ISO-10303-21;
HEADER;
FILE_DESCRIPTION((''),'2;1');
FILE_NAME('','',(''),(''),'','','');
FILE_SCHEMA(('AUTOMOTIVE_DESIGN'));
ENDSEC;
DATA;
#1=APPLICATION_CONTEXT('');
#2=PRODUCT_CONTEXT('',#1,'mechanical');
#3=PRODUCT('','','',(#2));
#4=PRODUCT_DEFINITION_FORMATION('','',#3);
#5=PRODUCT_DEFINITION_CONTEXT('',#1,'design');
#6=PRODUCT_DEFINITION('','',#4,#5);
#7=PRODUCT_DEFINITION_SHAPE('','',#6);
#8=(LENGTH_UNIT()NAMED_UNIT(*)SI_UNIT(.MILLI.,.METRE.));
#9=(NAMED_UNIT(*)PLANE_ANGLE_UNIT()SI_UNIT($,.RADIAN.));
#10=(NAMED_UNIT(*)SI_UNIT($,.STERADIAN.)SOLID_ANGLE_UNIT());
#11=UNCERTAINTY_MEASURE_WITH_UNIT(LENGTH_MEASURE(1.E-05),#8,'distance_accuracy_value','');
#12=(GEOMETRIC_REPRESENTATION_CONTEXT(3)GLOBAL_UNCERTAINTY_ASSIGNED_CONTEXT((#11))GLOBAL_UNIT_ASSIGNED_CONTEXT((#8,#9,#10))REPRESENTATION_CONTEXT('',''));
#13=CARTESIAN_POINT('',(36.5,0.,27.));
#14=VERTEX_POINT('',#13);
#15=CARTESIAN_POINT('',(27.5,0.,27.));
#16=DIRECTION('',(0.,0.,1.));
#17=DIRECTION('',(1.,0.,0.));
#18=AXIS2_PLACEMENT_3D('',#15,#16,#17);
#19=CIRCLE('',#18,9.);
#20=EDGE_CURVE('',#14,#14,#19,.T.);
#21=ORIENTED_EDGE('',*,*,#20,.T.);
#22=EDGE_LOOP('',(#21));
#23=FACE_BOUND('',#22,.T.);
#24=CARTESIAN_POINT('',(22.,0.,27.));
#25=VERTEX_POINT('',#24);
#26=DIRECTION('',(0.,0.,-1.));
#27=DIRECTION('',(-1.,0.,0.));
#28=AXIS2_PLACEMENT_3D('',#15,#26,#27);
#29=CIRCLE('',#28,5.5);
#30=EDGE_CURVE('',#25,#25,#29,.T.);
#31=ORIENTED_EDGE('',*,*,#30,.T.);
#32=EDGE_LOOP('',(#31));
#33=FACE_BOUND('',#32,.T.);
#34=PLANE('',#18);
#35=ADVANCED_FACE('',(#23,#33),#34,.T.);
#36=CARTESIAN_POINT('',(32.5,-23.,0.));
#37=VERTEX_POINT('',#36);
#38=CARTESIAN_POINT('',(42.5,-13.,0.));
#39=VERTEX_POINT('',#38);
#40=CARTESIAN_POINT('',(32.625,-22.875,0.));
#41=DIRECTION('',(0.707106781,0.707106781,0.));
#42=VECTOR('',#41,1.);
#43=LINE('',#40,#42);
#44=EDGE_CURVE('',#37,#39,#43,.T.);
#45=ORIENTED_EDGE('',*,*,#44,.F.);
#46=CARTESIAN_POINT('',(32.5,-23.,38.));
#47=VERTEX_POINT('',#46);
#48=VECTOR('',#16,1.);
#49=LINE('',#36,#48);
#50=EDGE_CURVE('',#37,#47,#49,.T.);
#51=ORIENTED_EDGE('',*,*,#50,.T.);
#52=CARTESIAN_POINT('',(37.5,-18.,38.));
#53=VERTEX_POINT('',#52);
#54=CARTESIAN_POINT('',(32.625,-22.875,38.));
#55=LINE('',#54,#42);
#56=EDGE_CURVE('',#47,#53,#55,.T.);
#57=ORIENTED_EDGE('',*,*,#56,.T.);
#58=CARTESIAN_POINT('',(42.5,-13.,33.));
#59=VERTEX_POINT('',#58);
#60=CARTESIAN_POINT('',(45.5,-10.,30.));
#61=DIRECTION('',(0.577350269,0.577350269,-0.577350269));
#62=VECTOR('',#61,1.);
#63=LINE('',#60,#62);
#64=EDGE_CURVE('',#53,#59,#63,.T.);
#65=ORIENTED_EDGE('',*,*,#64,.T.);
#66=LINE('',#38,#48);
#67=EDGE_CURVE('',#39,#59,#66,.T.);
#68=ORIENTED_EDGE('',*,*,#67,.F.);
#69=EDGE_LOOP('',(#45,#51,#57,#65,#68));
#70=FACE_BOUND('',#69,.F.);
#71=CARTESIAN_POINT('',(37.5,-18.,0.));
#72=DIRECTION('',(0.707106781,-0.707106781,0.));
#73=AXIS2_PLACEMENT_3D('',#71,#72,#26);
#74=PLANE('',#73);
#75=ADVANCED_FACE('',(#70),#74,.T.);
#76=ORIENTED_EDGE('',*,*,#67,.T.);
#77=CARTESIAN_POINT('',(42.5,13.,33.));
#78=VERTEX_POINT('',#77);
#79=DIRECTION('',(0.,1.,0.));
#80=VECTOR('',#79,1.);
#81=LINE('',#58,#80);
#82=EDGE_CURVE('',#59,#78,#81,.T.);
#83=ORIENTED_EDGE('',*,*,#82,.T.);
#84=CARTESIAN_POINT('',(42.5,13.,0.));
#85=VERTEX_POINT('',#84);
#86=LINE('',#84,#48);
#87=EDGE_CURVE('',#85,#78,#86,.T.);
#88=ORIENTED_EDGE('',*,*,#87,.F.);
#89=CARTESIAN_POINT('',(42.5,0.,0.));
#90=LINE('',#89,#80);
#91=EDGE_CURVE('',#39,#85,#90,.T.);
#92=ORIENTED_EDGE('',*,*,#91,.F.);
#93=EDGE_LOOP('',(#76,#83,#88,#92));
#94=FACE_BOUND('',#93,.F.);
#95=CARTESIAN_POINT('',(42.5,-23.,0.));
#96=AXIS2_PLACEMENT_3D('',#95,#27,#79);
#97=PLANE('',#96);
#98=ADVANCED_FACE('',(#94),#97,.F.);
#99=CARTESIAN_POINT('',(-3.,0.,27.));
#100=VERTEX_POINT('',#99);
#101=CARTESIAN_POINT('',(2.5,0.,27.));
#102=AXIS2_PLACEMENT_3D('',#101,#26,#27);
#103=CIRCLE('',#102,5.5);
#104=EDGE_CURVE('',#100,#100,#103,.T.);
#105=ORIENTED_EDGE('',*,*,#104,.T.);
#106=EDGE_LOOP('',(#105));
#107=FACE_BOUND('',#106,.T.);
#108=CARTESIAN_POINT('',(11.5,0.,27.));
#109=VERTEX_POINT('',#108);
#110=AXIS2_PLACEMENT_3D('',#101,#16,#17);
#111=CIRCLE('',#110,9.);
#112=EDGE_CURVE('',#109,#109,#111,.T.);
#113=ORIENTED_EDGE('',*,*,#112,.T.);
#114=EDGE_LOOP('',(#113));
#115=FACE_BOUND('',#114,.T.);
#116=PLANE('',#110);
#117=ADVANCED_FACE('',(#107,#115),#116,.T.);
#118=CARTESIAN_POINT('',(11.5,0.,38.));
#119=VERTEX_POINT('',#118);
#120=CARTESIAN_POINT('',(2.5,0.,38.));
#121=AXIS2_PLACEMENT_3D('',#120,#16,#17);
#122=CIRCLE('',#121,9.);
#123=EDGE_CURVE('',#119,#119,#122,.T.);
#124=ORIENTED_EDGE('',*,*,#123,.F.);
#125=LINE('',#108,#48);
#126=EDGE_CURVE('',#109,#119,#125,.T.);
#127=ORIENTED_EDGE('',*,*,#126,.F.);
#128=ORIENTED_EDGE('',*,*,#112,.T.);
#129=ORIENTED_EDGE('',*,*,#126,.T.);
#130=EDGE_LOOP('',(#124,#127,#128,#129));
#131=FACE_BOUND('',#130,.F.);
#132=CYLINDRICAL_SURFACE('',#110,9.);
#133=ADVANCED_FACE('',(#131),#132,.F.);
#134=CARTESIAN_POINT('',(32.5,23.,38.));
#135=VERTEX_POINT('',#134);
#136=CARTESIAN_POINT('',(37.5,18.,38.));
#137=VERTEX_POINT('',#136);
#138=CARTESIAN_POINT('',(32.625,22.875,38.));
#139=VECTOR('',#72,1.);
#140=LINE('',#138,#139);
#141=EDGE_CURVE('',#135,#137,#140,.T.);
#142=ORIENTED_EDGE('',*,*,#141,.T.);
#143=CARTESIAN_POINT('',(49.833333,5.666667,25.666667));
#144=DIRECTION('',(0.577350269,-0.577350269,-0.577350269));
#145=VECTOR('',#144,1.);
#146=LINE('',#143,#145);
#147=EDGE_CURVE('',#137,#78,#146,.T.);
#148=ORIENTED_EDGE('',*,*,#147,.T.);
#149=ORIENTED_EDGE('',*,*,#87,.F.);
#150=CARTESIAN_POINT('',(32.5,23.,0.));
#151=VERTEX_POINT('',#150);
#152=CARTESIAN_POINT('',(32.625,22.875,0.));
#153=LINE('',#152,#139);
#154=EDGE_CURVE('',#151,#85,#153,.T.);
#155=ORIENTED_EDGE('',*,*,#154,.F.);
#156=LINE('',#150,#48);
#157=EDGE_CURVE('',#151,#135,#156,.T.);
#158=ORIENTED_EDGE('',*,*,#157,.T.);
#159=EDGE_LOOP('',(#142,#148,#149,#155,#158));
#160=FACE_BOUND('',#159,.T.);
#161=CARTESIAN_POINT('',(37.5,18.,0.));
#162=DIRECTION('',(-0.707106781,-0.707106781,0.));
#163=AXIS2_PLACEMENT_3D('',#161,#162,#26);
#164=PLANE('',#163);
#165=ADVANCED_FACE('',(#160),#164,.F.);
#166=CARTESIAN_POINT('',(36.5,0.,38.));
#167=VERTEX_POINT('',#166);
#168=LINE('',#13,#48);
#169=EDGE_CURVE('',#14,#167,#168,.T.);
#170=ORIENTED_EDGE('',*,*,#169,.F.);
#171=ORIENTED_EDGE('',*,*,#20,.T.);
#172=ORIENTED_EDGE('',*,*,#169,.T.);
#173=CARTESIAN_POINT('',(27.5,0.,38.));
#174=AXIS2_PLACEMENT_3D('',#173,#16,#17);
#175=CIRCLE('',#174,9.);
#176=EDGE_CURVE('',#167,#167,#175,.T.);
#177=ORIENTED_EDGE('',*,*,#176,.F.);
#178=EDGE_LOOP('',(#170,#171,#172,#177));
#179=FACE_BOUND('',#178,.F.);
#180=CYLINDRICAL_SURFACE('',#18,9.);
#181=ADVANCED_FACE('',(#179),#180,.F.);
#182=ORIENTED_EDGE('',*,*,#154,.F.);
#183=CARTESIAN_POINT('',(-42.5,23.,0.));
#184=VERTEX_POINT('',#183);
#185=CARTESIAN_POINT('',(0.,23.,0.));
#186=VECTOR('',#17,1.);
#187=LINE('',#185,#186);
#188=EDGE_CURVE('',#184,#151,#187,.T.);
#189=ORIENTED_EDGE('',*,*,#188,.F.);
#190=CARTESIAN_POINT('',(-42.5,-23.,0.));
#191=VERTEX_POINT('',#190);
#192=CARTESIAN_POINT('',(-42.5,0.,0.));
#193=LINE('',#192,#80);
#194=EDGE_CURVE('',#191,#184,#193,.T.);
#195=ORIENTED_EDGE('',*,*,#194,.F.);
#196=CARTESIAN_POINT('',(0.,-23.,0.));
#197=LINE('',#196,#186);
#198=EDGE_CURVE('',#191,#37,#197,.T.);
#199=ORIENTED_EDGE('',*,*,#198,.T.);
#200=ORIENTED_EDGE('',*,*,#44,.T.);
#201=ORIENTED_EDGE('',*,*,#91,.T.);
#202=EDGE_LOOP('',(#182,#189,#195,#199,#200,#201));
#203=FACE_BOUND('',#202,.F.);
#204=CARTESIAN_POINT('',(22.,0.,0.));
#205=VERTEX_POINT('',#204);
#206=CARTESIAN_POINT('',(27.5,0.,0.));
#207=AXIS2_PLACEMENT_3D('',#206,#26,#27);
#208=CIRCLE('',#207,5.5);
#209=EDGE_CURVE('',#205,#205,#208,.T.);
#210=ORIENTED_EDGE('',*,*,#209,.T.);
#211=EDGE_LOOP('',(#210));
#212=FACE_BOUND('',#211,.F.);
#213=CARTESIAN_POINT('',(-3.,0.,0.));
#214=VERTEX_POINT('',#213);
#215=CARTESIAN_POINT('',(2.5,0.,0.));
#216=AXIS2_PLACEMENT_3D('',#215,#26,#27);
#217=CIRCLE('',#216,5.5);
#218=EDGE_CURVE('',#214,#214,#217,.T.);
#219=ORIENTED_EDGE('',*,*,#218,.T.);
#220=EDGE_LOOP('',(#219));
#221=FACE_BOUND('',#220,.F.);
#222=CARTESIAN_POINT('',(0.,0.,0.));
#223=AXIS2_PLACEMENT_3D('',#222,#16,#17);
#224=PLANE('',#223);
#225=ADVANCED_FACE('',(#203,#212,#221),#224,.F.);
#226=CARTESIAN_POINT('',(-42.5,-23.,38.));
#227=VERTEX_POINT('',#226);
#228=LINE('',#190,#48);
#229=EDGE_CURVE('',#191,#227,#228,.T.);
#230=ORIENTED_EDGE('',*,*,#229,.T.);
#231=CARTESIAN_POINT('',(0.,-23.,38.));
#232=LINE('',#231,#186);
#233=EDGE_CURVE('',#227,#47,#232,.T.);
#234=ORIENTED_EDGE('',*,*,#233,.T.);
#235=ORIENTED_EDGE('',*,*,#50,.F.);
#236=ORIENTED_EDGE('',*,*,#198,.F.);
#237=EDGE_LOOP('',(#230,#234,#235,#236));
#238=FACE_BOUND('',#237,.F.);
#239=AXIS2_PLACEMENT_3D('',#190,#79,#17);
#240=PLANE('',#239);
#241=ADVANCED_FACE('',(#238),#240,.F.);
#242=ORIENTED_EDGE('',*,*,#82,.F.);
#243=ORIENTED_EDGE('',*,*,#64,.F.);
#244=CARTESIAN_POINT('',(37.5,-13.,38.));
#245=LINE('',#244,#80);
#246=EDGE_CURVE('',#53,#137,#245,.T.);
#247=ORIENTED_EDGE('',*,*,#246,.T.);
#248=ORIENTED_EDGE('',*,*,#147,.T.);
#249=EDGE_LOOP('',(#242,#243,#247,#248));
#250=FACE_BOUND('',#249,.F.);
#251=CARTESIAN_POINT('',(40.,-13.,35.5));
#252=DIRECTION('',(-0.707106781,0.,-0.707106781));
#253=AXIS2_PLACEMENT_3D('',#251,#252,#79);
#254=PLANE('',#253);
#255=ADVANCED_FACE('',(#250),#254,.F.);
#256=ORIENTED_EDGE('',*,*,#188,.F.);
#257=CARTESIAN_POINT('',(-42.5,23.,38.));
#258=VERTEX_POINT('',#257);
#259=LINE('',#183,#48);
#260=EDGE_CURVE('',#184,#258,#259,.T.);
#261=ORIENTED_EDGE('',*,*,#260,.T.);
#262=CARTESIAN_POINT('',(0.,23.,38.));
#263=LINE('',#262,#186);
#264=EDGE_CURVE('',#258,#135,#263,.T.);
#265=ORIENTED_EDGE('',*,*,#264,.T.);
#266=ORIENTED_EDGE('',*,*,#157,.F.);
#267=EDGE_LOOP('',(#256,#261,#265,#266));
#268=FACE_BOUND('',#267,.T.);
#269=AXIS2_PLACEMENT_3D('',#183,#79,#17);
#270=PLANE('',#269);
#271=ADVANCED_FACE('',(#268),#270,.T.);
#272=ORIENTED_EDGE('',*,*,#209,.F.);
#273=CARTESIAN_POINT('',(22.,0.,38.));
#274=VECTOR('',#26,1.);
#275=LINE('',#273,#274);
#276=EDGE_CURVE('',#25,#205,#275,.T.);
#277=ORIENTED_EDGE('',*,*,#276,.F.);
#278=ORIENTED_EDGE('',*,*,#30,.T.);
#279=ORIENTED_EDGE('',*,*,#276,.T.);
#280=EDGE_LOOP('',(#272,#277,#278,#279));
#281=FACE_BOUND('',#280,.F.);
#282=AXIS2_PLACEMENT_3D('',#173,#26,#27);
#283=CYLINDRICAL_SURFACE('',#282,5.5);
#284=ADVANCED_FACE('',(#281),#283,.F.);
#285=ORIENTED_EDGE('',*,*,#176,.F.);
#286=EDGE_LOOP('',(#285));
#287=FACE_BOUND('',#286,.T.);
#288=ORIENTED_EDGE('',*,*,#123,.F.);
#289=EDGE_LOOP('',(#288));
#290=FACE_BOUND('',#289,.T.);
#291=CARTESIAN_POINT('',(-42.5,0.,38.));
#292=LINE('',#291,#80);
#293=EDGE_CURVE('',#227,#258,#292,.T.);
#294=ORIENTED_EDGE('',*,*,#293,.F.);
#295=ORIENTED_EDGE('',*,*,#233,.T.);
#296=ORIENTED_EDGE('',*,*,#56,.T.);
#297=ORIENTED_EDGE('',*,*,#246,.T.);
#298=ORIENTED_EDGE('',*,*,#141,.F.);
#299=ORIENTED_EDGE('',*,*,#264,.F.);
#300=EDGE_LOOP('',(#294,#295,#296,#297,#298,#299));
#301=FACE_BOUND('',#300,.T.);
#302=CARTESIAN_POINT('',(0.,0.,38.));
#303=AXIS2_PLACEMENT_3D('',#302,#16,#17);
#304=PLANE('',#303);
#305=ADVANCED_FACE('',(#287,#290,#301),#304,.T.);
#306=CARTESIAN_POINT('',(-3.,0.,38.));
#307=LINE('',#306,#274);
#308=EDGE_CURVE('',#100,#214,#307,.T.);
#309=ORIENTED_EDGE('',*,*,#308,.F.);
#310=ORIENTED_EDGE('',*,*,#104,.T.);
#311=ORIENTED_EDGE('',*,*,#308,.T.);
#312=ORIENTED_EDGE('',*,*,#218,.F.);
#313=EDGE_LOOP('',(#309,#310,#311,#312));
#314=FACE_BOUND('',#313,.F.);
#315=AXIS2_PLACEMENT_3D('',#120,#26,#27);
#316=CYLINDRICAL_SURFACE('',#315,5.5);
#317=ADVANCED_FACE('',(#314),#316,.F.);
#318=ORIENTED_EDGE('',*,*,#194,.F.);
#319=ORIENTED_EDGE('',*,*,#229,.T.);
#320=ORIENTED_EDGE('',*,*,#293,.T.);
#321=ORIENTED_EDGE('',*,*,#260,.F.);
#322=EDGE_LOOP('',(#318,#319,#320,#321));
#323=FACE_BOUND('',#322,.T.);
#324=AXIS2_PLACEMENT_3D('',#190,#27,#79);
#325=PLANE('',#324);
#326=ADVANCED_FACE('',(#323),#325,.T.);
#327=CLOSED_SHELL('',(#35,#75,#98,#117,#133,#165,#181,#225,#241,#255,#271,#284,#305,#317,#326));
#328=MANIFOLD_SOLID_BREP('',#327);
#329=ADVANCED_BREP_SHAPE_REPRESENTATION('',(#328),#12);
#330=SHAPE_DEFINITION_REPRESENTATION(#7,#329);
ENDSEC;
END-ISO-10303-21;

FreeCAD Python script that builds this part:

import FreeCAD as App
import Part
import Sketcher

V = App.Vector
Q = App.Units.Quantity


def edges_at(feature, points):
    """Names of the edges that pass closest to the given points."""
    edges = feature.Shape.Edges
    near = lambda p: min(range(len(edges)), key=lambda i: edges[i].distToShape(Part.Vertex(*p))[0])
    return sorted({f"Edge{near(p) + 1}" for p in points})

doc = App.newDocument("Part")
body = doc.addObject("PartDesign::Body", "Body")

sketch1 = doc.addObject("Sketcher::SketchObject", "Sketch")
body.addObject(sketch1)
sketch1.AttachmentSupport = (doc.XY_Plane, [""])
sketch1.MapMode = "FlatFace"
sketch1.addGeometry(Part.LineSegment(V(-42.5, 23, 0), V(-42.5, -23, 0)), False)
sketch1.addGeometry(Part.LineSegment(V(-42.5, -23, 0), V(42.5, -23, 0)), False)
sketch1.addGeometry(Part.LineSegment(V(42.5, -23, 0), V(42.5, 23, 0)), False)
sketch1.addGeometry(Part.LineSegment(V(42.5, 23, 0), V(-42.5, 23, 0)), False)
sketch1.addConstraint(Sketcher.Constraint("Coincident", 0, 2, 1, 1))
sketch1.addConstraint(Sketcher.Constraint("Coincident", 1, 2, 2, 1))
sketch1.addConstraint(Sketcher.Constraint("Coincident", 2, 2, 3, 1))
sketch1.addConstraint(Sketcher.Constraint("Coincident", 3, 2, 0, 1))
sketch1.addConstraint(Sketcher.Constraint("Vertical", 0))
sketch1.addConstraint(Sketcher.Constraint("Horizontal", 1))
sketch1.addConstraint(Sketcher.Constraint("Vertical", 2))
sketch1.addConstraint(Sketcher.Constraint("Horizontal", 3))
sketch1.addConstraint(Sketcher.Constraint("Symmetric", 0, 2, 2, 2, -1, 1))
sketch1.addConstraint(Sketcher.Constraint("DistanceX", 1, 1, 1, 2, Q("85 mm")))
sketch1.addConstraint(Sketcher.Constraint("DistanceY", 0, 2, 0, 1, Q("46 mm")))
pad1 = doc.addObject("PartDesign::Pad", "Pad")
body.addObject(pad1)
pad1.Profile = sketch1
pad1.Length = 38

sketch2 = doc.addObject("Sketcher::SketchObject", "Sketch001")
body.addObject(sketch2)
sketch2.AttachmentSupport = (doc.XY_Plane, [""])
sketch2.MapMode = "FlatFace"
sketch2.AttachmentOffset = App.Placement(V(0, 0, 38), App.Rotation())
sketch2.addGeometry(Part.Circle(V(2.5, 0, 0), V(0, 0, 1), 5.5), False)
sketch2.addGeometry(Part.Circle(V(27.5, 0, 0), V(0, 0, 1), 5.5), False)
sketch2.addConstraint(Sketcher.Constraint("Equal", 0, 1))
sketch2.addConstraint(Sketcher.Constraint("PointOnObject", 0, 3, -1))
sketch2.addConstraint(Sketcher.Constraint("PointOnObject", 1, 3, -1))
sketch2.addConstraint(Sketcher.Constraint("Diameter", 0, Q("11 mm")))
sketch2.addConstraint(Sketcher.Constraint("DistanceX", 0, 3, 1, 3, Q("25 mm")))
sketch2.addConstraint(Sketcher.Constraint("DistanceX", -1, 1, 0, 3, Q("2.5 mm")))
doc.recompute()
hole = doc.addObject("PartDesign::Hole", "Hole")
body.addObject(hole)
hole.Profile = sketch2
hole.ThreadType = "None"
hole.Diameter = 11
hole.DepthType = "ThroughAll"
hole.HoleCutType = "Counterbore"
hole.HoleCutDiameter = 18
hole.HoleCutDepth = 11
doc.recompute()

chamfer = doc.addObject("PartDesign::Chamfer", "Chamfer")
body.addObject(chamfer)
chamfer.Base = (hole, edges_at(hole, [(42.5, 23, 19), (42.5, -23, 19)]))
chamfer.Size = 10
doc.recompute()

chamfer2 = doc.addObject("PartDesign::Chamfer", "Chamfer001")
body.addObject(chamfer2)
chamfer2.Base = (chamfer, edges_at(chamfer, [(42.5, 0, 38)]))
chamfer2.Size = 5

doc.recompute()
